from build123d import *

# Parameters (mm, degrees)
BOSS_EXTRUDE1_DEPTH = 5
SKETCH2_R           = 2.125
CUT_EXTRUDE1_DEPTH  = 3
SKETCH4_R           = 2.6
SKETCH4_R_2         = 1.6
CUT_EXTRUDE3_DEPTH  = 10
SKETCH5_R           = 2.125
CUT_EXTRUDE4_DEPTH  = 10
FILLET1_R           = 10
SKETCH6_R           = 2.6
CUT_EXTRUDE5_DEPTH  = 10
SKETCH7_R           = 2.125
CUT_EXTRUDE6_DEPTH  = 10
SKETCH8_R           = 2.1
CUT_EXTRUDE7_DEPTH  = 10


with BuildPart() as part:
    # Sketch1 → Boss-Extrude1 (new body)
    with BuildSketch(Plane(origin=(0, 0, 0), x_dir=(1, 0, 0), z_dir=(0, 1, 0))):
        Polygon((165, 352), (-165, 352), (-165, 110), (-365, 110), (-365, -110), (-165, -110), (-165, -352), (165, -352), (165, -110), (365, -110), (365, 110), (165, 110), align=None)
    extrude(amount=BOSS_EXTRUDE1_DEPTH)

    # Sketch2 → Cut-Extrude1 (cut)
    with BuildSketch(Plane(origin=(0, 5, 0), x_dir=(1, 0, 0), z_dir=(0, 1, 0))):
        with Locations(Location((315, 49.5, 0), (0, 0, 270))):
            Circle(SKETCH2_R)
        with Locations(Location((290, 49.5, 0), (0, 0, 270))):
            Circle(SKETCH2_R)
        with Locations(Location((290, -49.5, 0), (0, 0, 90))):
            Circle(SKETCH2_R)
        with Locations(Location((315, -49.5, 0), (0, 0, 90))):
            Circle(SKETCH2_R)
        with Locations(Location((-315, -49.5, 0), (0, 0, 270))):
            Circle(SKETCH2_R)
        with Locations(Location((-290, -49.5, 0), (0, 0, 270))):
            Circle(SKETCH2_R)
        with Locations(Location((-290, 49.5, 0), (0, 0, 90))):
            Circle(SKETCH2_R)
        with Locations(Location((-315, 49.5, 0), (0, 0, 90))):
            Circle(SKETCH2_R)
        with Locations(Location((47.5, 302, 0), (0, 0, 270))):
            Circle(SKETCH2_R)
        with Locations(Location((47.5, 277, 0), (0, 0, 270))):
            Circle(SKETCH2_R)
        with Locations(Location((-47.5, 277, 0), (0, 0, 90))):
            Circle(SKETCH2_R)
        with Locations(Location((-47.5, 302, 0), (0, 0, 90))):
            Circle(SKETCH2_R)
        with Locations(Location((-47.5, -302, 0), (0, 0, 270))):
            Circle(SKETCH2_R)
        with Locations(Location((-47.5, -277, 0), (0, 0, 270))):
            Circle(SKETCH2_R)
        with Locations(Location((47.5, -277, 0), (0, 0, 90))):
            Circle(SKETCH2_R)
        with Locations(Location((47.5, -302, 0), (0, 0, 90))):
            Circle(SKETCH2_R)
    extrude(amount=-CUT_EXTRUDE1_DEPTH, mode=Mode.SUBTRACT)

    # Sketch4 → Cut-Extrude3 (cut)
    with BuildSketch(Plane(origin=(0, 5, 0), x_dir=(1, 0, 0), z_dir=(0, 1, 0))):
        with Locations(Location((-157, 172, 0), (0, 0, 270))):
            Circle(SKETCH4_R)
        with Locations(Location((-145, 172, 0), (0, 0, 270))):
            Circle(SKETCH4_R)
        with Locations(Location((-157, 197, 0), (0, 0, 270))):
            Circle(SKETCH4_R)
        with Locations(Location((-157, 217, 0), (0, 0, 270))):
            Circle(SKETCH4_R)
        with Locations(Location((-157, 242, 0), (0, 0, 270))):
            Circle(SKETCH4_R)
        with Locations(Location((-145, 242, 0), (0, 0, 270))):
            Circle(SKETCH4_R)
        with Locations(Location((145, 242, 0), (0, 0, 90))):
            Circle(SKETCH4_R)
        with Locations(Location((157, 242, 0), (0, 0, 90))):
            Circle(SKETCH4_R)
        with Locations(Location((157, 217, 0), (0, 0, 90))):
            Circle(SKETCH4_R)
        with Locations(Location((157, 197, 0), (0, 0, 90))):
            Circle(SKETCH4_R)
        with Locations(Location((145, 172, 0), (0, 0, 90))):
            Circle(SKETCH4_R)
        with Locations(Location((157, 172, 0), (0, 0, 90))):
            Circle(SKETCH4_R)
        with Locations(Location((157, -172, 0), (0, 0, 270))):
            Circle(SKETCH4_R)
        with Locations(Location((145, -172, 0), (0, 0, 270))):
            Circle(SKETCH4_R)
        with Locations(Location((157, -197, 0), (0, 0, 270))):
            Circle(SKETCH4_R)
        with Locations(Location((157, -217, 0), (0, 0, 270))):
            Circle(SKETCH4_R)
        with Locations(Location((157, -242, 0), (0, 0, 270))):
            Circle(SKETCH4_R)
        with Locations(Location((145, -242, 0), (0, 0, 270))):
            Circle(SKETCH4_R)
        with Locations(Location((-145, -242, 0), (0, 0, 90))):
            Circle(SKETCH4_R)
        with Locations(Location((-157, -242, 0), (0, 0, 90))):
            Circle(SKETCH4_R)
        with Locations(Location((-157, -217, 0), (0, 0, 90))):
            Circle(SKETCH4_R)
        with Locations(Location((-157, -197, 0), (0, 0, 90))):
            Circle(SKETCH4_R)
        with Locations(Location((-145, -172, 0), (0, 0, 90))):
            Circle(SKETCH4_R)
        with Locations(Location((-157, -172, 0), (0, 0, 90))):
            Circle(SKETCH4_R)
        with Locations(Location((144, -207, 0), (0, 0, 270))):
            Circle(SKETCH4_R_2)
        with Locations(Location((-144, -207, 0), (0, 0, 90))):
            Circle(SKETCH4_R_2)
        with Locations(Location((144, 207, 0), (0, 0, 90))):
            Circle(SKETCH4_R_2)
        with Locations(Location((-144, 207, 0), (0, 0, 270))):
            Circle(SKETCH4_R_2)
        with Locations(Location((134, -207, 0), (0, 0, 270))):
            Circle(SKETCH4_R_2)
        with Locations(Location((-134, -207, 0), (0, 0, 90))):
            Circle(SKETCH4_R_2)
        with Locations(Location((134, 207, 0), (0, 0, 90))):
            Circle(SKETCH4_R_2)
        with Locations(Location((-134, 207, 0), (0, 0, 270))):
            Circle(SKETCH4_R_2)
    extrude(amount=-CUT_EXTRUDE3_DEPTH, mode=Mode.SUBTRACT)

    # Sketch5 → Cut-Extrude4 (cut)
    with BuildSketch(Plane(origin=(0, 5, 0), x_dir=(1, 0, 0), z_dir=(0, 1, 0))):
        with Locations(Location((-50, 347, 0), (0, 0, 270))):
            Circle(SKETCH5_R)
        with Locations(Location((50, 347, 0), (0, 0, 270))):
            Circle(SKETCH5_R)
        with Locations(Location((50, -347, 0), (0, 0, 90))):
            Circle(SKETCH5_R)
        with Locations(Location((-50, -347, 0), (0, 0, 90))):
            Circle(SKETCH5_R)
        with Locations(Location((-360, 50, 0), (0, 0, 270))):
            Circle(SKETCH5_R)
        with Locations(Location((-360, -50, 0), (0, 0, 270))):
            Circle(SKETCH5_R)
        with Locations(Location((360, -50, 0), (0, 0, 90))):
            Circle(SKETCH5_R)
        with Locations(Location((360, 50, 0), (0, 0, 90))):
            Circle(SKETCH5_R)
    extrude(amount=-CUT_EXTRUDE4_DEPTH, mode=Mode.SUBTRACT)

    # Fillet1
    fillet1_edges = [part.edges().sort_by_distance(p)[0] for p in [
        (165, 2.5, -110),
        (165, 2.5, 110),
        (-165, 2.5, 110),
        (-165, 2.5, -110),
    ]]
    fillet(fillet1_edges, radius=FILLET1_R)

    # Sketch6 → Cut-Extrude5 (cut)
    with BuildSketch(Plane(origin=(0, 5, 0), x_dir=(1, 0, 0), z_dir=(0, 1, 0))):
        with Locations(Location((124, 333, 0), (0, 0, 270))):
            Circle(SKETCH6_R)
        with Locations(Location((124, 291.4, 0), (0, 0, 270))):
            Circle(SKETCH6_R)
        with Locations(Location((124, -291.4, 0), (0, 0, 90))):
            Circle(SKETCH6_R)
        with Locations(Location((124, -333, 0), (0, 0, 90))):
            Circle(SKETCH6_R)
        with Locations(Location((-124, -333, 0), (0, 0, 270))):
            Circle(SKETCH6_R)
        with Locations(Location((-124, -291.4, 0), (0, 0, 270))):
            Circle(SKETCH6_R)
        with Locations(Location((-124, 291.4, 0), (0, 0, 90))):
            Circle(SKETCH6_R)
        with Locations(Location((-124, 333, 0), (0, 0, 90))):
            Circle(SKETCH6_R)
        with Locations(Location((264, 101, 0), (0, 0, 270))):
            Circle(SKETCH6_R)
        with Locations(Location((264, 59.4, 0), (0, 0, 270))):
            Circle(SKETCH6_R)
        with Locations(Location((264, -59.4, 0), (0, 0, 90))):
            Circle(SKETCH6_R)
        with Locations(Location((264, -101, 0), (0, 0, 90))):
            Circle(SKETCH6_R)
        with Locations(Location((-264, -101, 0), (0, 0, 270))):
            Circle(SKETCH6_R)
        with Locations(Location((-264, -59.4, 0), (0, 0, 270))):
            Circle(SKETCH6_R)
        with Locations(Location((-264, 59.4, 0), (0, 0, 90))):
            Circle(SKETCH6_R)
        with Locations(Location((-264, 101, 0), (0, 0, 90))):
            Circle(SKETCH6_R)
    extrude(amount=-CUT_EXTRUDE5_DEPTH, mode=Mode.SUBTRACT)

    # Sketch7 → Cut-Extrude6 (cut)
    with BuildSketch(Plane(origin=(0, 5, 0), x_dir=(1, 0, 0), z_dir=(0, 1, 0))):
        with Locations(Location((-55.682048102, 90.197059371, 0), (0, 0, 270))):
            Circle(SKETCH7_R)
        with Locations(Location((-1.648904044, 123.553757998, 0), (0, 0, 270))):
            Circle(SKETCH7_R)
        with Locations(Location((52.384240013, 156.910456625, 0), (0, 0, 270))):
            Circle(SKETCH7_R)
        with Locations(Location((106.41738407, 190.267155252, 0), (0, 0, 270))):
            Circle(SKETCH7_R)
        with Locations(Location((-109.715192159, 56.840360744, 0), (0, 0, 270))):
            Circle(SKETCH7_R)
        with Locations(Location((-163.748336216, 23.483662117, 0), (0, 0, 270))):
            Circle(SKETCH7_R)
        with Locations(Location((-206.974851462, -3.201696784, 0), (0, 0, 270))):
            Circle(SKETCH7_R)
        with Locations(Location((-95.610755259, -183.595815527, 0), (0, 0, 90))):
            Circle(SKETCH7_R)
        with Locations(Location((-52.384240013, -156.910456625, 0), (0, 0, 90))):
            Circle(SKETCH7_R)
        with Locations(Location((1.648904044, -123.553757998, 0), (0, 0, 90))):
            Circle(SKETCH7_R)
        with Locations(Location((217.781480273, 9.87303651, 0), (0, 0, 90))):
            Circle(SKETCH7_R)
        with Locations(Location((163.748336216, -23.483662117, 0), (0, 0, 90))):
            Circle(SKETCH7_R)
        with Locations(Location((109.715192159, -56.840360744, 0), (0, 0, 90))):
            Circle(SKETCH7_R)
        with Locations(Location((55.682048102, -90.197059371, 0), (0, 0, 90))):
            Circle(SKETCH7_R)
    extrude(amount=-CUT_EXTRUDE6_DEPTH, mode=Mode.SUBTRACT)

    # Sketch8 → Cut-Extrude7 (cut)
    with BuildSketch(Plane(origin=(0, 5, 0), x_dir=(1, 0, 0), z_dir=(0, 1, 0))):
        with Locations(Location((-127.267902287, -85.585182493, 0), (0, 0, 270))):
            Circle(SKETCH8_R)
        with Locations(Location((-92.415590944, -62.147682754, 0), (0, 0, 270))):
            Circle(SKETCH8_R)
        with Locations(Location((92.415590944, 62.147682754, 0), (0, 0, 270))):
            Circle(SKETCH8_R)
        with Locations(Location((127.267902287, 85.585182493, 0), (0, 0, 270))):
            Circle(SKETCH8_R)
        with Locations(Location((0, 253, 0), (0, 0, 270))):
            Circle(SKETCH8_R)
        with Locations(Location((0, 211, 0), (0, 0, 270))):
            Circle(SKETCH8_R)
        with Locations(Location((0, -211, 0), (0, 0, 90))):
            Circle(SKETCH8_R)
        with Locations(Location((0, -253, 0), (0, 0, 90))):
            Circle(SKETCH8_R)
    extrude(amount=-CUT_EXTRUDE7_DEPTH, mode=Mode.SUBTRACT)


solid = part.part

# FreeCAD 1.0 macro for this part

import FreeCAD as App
import Part
import Sketcher

V = App.Vector


def edges_at(feature, points):
    """Names of the edges that pass closest to the given points."""
    edges = feature.Shape.Edges
    near = lambda p: min(range(len(edges)), key=lambda i: edges[i].distToShape(Part.Vertex(*p))[0])
    return sorted({f"Edge{near(p) + 1}" for p in points})


def add_polygon(sketch, points):
    """Adds a closed chain of lines whose ends are joined by coincident constraints."""
    first, n = sketch.GeometryCount, len(points)
    for a, b in zip(points, points[1:] + points[:1]):
        sketch.addGeometry(Part.LineSegment(App.Vector(*a, 0), App.Vector(*b, 0)), False)
    for i in range(n):
        sketch.addConstraint(Sketcher.Constraint("Coincident", first + i, 2, first + (i + 1) % n, 1))

doc = App.newDocument("Part")
body = doc.addObject("PartDesign::Body", "Body")

sketch1 = body.newObject("Sketcher::SketchObject", "Sketch")
sketch1.AttachmentSupport = (doc.getObject("XZ_Plane"), [""])
sketch1.MapMode = "FlatFace"
add_polygon(sketch1, [(165, -352), (-165, -352), (-165, -110), (-365, -110), (-365, 110), (-165, 110), (-165, 352), (165, 352), (165, 110), (365, 110), (365, -110), (165, -110)])
sketch1.addConstraint([
    Sketcher.Constraint("Horizontal", 0),
    Sketcher.Constraint("Vertical", 1),
    Sketcher.Constraint("Horizontal", 2),
    Sketcher.Constraint("Vertical", 3),
    Sketcher.Constraint("Horizontal", 4),
    Sketcher.Constraint("Vertical", 5),
    Sketcher.Constraint("Horizontal", 6),
    Sketcher.Constraint("Vertical", 7),
    Sketcher.Constraint("Horizontal", 8),
    Sketcher.Constraint("Vertical", 9),
    Sketcher.Constraint("Horizontal", 10),
    Sketcher.Constraint("Vertical", 11),
    Sketcher.Constraint("Symmetric", 0, 2, 6, 2, -1, 1),
    Sketcher.Constraint("Symmetric", 2, 2, 8, 2, -1, 1),
    Sketcher.Constraint("Symmetric", 4, 2, 10, 2, -1, 1),
    Sketcher.Constraint("Symmetric", 4, 2, 7, 2, -2),
    Sketcher.Constraint("DistanceX", 0, 2, 0, 1, 330.0),
    Sketcher.Constraint("DistanceX", 2, 2, 2, 1, 200.0),
    Sketcher.Constraint("DistanceY", 1, 1, 1, 2, 242.0),
    Sketcher.Constraint("DistanceY", 3, 1, 3, 2, 220.0),
])
pad1 = body.newObject("PartDesign::Pad", "Pad")
pad1.Profile = sketch1
pad1.Length = 5
pad1.Reversed = True

sketch2 = body.newObject("Sketcher::SketchObject", "Sketch001")
sketch2.AttachmentSupport = (doc.getObject("XZ_Plane"), [""])
sketch2.MapMode = "FlatFace"
sketch2.AttachmentOffset = App.Placement(V(0, 0, -5), App.Rotation())
sketch2.addGeometry([
    Part.Circle(V(315, -49.5, 0), V(0, 0, 1), 2.1),
    Part.Circle(V(290, -49.5, 0), V(0, 0, 1), 2.1),
    Part.Circle(V(290, 49.5, 0), V(0, 0, 1), 2.1),
    Part.Circle(V(315, 49.5, 0), V(0, 0, 1), 2.1),
    Part.Circle(V(-315, 49.5, 0), V(0, 0, 1), 2.1),
    Part.Circle(V(-290, 49.5, 0), V(0, 0, 1), 2.1),
    Part.Circle(V(-290, -49.5, 0), V(0, 0, 1), 2.1),
    Part.Circle(V(-315, -49.5, 0), V(0, 0, 1), 2.1),
    Part.Circle(V(47.5, -302, 0), V(0, 0, 1), 2.1),
    Part.Circle(V(47.5, -277, 0), V(0, 0, 1), 2.1),
    Part.Circle(V(-47.5, -277, 0), V(0, 0, 1), 2.1),
    Part.Circle(V(-47.5, -302, 0), V(0, 0, 1), 2.1),
    Part.Circle(V(-47.5, 302, 0), V(0, 0, 1), 2.1),
    Part.Circle(V(-47.5, 277, 0), V(0, 0, 1), 2.1),
    Part.Circle(V(47.5, 277, 0), V(0, 0, 1), 2.1),
    Part.Circle(V(47.5, 302, 0), V(0, 0, 1), 2.1),
], False)
sketch2.addConstraint([
    Sketcher.Constraint("Equal", 0, 1),
    Sketcher.Constraint("Equal", 1, 2),
    Sketcher.Constraint("Equal", 2, 3),
    Sketcher.Constraint("Equal", 3, 4),
    Sketcher.Constraint("Equal", 4, 5),
    Sketcher.Constraint("Equal", 5, 6),
    Sketcher.Constraint("Equal", 6, 7),
    Sketcher.Constraint("Equal", 7, 8),
    Sketcher.Constraint("Equal", 8, 9),
    Sketcher.Constraint("Equal", 9, 10),
    Sketcher.Constraint("Equal", 10, 11),
    Sketcher.Constraint("Equal", 11, 12),
    Sketcher.Constraint("Equal", 12, 13),
    Sketcher.Constraint("Equal", 13, 14),
    Sketcher.Constraint("Equal", 14, 15),
    Sketcher.Constraint("Symmetric", 0, 3, 4, 3, -1, 1),
    Sketcher.Constraint("Symmetric", 1, 3, 5, 3, -1, 1),
    Sketcher.Constraint("Symmetric", 2, 3, 6, 3, -1, 1),
    Sketcher.Constraint("Symmetric", 3, 3, 7, 3, -1, 1),
    Sketcher.Constraint("Symmetric", 8, 3, 12, 3, -1, 1),
    Sketcher.Constraint("Symmetric", 9, 3, 13, 3, -1, 1),
    Sketcher.Constraint("Symmetric", 10, 3, 14, 3, -1, 1),
    Sketcher.Constraint("Symmetric", 11, 3, 15, 3, -1, 1),
    Sketcher.Constraint("Symmetric", 3, 3, 4, 3, -2),
    Sketcher.Constraint("Symmetric", 2, 3, 5, 3, -2),
    Sketcher.Constraint("Symmetric", 9, 3, 10, 3, -2),
    Sketcher.Constraint("Symmetric", 8, 3, 11, 3, -2),
    Sketcher.Constraint("Horizontal", 0, 3, 1, 3),
    Sketcher.Constraint("Vertical", 8, 3, 9, 3),
    Sketcher.Constraint("Diameter", 0, 4.25),
    Sketcher.Constraint("DistanceX", -1, 1, 0, 3, 315.0),
    Sketcher.Constraint("DistanceX", -1, 1, 1, 3, 290.0),
    Sketcher.Constraint("DistanceY", 8, 3, -1, 1, 302.0),
    Sketcher.Constraint("DistanceY", 9, 3, -1, 1, 277.0),
    Sketcher.Constraint("DistanceY", 1, 3, 2, 3, 99.0),
    Sketcher.Constraint("DistanceX", 10, 3, 9, 3, 95.0),
])
pocket1 = body.newObject("PartDesign::Pocket", "Pocket")
pocket1.Profile = sketch2
pocket1.Length = 3
pocket1.Reversed = True

sketch3 = body.newObject("Sketcher::SketchObject", "Sketch002")
sketch3.AttachmentSupport = (doc.getObject("XZ_Plane"), [""])
sketch3.MapMode = "FlatFace"
sketch3.AttachmentOffset = App.Placement(V(0, 0, -5), App.Rotation())
sketch3.addGeometry([
    Part.Circle(V(-157, -172, 0), V(0, 0, 1), 2.6),
    Part.Circle(V(-145, -172, 0), V(0, 0, 1), 2.6),
    Part.Circle(V(-157, -197, 0), V(0, 0, 1), 2.6),
    Part.Circle(V(-157, -217, 0), V(0, 0, 1), 2.6),
    Part.Circle(V(-157, -242, 0), V(0, 0, 1), 2.6),
    Part.Circle(V(-145, -242, 0), V(0, 0, 1), 2.6),
    Part.Circle(V(145, -242, 0), V(0, 0, 1), 2.6),
    Part.Circle(V(157, -242, 0), V(0, 0, 1), 2.6),
    Part.Circle(V(157, -217, 0), V(0, 0, 1), 2.6),
    Part.Circle(V(157, -197, 0), V(0, 0, 1), 2.6),
    Part.Circle(V(145, -172, 0), V(0, 0, 1), 2.6),
    Part.Circle(V(157, -172, 0), V(0, 0, 1), 2.6),
    Part.Circle(V(157, 172, 0), V(0, 0, 1), 2.6),
    Part.Circle(V(145, 172, 0), V(0, 0, 1), 2.6),
    Part.Circle(V(157, 197, 0), V(0, 0, 1), 2.6),
    Part.Circle(V(157, 217, 0), V(0, 0, 1), 2.6),
    Part.Circle(V(157, 242, 0), V(0, 0, 1), 2.6),
    Part.Circle(V(145, 242, 0), V(0, 0, 1), 2.6),
    Part.Circle(V(-145, 242, 0), V(0, 0, 1), 2.6),
    Part.Circle(V(-157, 242, 0), V(0, 0, 1), 2.6),
    Part.Circle(V(-157, 217, 0), V(0, 0, 1), 2.6),
    Part.Circle(V(-157, 197, 0), V(0, 0, 1), 2.6),
    Part.Circle(V(-145, 172, 0), V(0, 0, 1), 2.6),
    Part.Circle(V(-157, 172, 0), V(0, 0, 1), 2.6),
    Part.Circle(V(144, 207, 0), V(0, 0, 1), 1.6),
    Part.Circle(V(-144, 207, 0), V(0, 0, 1), 1.6),
    Part.Circle(V(144, -207, 0), V(0, 0, 1), 1.6),
    Part.Circle(V(-144, -207, 0), V(0, 0, 1), 1.6),
    Part.Circle(V(134, 207, 0), V(0, 0, 1), 1.6),
    Part.Circle(V(-134, 207, 0), V(0, 0, 1), 1.6),
    Part.Circle(V(134, -207, 0), V(0, 0, 1), 1.6),
    Part.Circle(V(-134, -207, 0), V(0, 0, 1), 1.6),
], False)
sketch3.addConstraint([
    Sketcher.Constraint("Equal", 0, 1),
    Sketcher.Constraint("Equal", 1, 2),
    Sketcher.Constraint("Equal", 2, 3),
    Sketcher.Constraint("Equal", 3, 4),
    Sketcher.Constraint("Equal", 4, 5),
    Sketcher.Constraint("Equal", 5, 6),
    Sketcher.Constraint("Equal", 6, 7),
    Sketcher.Constraint("Equal", 7, 8),
    Sketcher.Constraint("Equal", 8, 9),
    Sketcher.Constraint("Equal", 9, 10),
    Sketcher.Constraint("Equal", 10, 11),
    Sketcher.Constraint("Equal", 11, 12),
    Sketcher.Constraint("Equal", 12, 13),
    Sketcher.Constraint("Equal", 13, 14),
    Sketcher.Constraint("Equal", 14, 15),
    Sketcher.Constraint("Equal", 15, 16),
    Sketcher.Constraint("Equal", 16, 17),
    Sketcher.Constraint("Equal", 17, 18),
    Sketcher.Constraint("Equal", 18, 19),
    Sketcher.Constraint("Equal", 19, 20),
    Sketcher.Constraint("Equal", 20, 21),
    Sketcher.Constraint("Equal", 21, 22),
    Sketcher.Constraint("Equal", 22, 23),
    Sketcher.Constraint("Equal", 24, 25),
    Sketcher.Constraint("Equal", 25, 26),
    Sketcher.Constraint("Equal", 26, 27),
    Sketcher.Constraint("Equal", 27, 28),
    Sketcher.Constraint("Equal", 28, 29),
    Sketcher.Constraint("Equal", 29, 30),
    Sketcher.Constraint("Equal", 30, 31),
    Sketcher.Constraint("Symmetric", 0, 3, 12, 3, -1, 1),
    Sketcher.Constraint("Symmetric", 1, 3, 13, 3, -1, 1),
    Sketcher.Constraint("Symmetric", 2, 3, 14, 3, -1, 1),
    Sketcher.Constraint("Symmetric", 3, 3, 15, 3, -1, 1),
    Sketcher.Constraint("Symmetric", 4, 3, 16, 3, -1, 1),
    Sketcher.Constraint("Symmetric", 5, 3, 17, 3, -1, 1),
    Sketcher.Constraint("Symmetric", 6, 3, 18, 3, -1, 1),
    Sketcher.Constraint("Symmetric", 7, 3, 19, 3, -1, 1),
    Sketcher.Constraint("Symmetric", 8, 3, 20, 3, -1, 1),
    Sketcher.Constraint("Symmetric", 9, 3, 21, 3, -1, 1),
    Sketcher.Constraint("Symmetric", 10, 3, 22, 3, -1, 1),
    Sketcher.Constraint("Symmetric", 11, 3, 23, 3, -1, 1),
    Sketcher.Constraint("Symmetric", 25, 3, 26, 3, -1, 1),
    Sketcher.Constraint("Symmetric", 24, 3, 27, 3, -1, 1),
    Sketcher.Constraint("Symmetric", 29, 3, 30, 3, -1, 1),
    Sketcher.Constraint("Symmetric", 28, 3, 31, 3, -1, 1),
    Sketcher.Constraint("Symmetric", 5, 3, 6, 3, -2),
    Sketcher.Constraint("Symmetric", 4, 3, 7, 3, -2),
    Sketcher.Constraint("Symmetric", 3, 3, 8, 3, -2),
    Sketcher.Constraint("Symmetric", 2, 3, 9, 3, -2),
    Sketcher.Constraint("Symmetric", 1, 3, 10, 3, -2),
    Sketcher.Constraint("Symmetric", 0, 3, 11, 3, -2),
    Sketcher.Constraint("Symmetric", 24, 3, 25, 3, -2),
    Sketcher.Constraint("Symmetric", 28, 3, 29, 3, -2),
    Sketcher.Constraint("Horizontal", 0, 3, 1, 3),
    Sketcher.Constraint("Horizontal", 4, 3, 5, 3),
    Sketcher.Constraint("Horizontal", 25, 3, 28, 3),
    Sketcher.Constraint("Vertical", 0, 3, 2, 3),
    Sketcher.Constraint("Vertical", 2, 3, 3, 3),
    Sketcher.Constraint("Vertical", 3, 3, 4, 3),
    Sketcher.Constraint("Vertical", 1, 3, 5, 3),
    Sketcher.Constraint("Diameter", 0, 5.2),
    Sketcher.Constraint("Diameter", 24, 3.2),
    Sketcher.Constraint("DistanceX", 0, 3, -1, 1, 157.0),
    Sketcher.Constraint("DistanceY", 0, 3, -1, 1, 172.0),
    Sketcher.Constraint("DistanceX", 1, 3, -1, 1, 145.0),
    Sketcher.Constraint("DistanceY", 2, 3, -1, 1, 197.0),
    Sketcher.Constraint("DistanceY", 3, 3, -1, 1, 217.0),
    Sketcher.Constraint("DistanceY", 4, 3, -1, 1, 242.0),
    Sketcher.Constraint("DistanceX", -1, 1, 24, 3, 144.0),
    Sketcher.Constraint("DistanceY", -1, 1, 24, 3, 207.0),
    Sketcher.Constraint("DistanceX", -1, 1, 28, 3, 134.0),
])
pocket2 = body.newObject("PartDesign::Pocket", "Pocket001")
pocket2.Profile = sketch3
pocket2.Length = 10
pocket2.Reversed = True

sketch4 = body.newObject("Sketcher::SketchObject", "Sketch003")
sketch4.AttachmentSupport = (doc.getObject("XZ_Plane"), [""])
sketch4.MapMode = "FlatFace"
sketch4.AttachmentOffset = App.Placement(V(0, 0, -5), App.Rotation())
sketch4.addGeometry([
    Part.Circle(V(-50, -347, 0), V(0, 0, 1), 2.1),
    Part.Circle(V(50, -347, 0), V(0, 0, 1), 2.1),
    Part.Circle(V(50, 347, 0), V(0, 0, 1), 2.1),
    Part.Circle(V(-50, 347, 0), V(0, 0, 1), 2.1),
    Part.Circle(V(-360, -50, 0), V(0, 0, 1), 2.1),
    Part.Circle(V(-360, 50, 0), V(0, 0, 1), 2.1),
    Part.Circle(V(360, 50, 0), V(0, 0, 1), 2.1),
    Part.Circle(V(360, -50, 0), V(0, 0, 1), 2.1),
], False)
sketch4.addConstraint([
    Sketcher.Constraint("Equal", 0, 1),
    Sketcher.Constraint("Equal", 1, 2),
    Sketcher.Constraint("Equal", 2, 3),
    Sketcher.Constraint("Equal", 3, 4),
    Sketcher.Constraint("Equal", 4, 5),
    Sketcher.Constraint("Equal", 5, 6),
    Sketcher.Constraint("Equal", 6, 7),
    Sketcher.Constraint("Symmetric", 0, 3, 2, 3, -1, 1),
    Sketcher.Constraint("Symmetric", 1, 3, 3, 3, -1, 1),
    Sketcher.Constraint("Symmetric", 4, 3, 6, 3, -1, 1),
    Sketcher.Constraint("Symmetric", 5, 3, 7, 3, -1, 1),
    Sketcher.Constraint("Symmetric", 0, 3, 1, 3, -2),
    Sketcher.Constraint("Symmetric", 5, 3, 6, 3, -2),
    Sketcher.Constraint("Diameter", 0, 4.25),
    Sketcher.Constraint("DistanceX", 0, 3, -1, 1, 50.0),
    Sketcher.Constraint("DistanceY", 0, 3, -1, 1, 347.0),
    Sketcher.Constraint("DistanceX", 4, 3, -1, 1, 360.0),
    Sketcher.Constraint("DistanceY", 4, 3, -1, 1, 50.0),
])
pocket3 = body.newObject("PartDesign::Pocket", "Pocket002")
pocket3.Profile = sketch4
pocket3.Length = 10
pocket3.Reversed = True
doc.recompute()

fillet = body.newObject("PartDesign::Fillet", "Fillet")
fillet.Base = (pocket3, edges_at(pocket3, [
    (165, 2.5, -110),
    (165, 2.5, 110),
    (-165, 2.5, 110),
    (-165, 2.5, -110),
]))
fillet.Radius = 10

sketch5 = body.newObject("Sketcher::SketchObject", "Sketch004")
sketch5.AttachmentSupport = (doc.getObject("XZ_Plane"), [""])
sketch5.MapMode = "FlatFace"
sketch5.AttachmentOffset = App.Placement(V(0, 0, -5), App.Rotation())
sketch5.addGeometry([
    Part.Circle(V(124, -333, 0), V(0, 0, 1), 2.6),
    Part.Circle(V(124, -291.4, 0), V(0, 0, 1), 2.6),
    Part.Circle(V(124, 291.4, 0), V(0, 0, 1), 2.6),
    Part.Circle(V(124, 333, 0), V(0, 0, 1), 2.6),
    Part.Circle(V(-124, 333, 0), V(0, 0, 1), 2.6),
    Part.Circle(V(-124, 291.4, 0), V(0, 0, 1), 2.6),
    Part.Circle(V(-124, -291.4, 0), V(0, 0, 1), 2.6),
    Part.Circle(V(-124, -333, 0), V(0, 0, 1), 2.6),
    Part.Circle(V(264, -101, 0), V(0, 0, 1), 2.6),
    Part.Circle(V(264, -59.4, 0), V(0, 0, 1), 2.6),
    Part.Circle(V(264, 59.4, 0), V(0, 0, 1), 2.6),
    Part.Circle(V(264, 101, 0), V(0, 0, 1), 2.6),
    Part.Circle(V(-264, 101, 0), V(0, 0, 1), 2.6),
    Part.Circle(V(-264, 59.4, 0), V(0, 0, 1), 2.6),
    Part.Circle(V(-264, -59.4, 0), V(0, 0, 1), 2.6),
    Part.Circle(V(-264, -101, 0), V(0, 0, 1), 2.6),
], False)
sketch5.addConstraint([
    Sketcher.Constraint("Equal", 0, 1),
    Sketcher.Constraint("Equal", 1, 2),
    Sketcher.Constraint("Equal", 2, 3),
    Sketcher.Constraint("Equal", 3, 4),
    Sketcher.Constraint("Equal", 4, 5),
    Sketcher.Constraint("Equal", 5, 6),
    Sketcher.Constraint("Equal", 6, 7),
    Sketcher.Constraint("Equal", 7, 8),
    Sketcher.Constraint("Equal", 8, 9),
    Sketcher.Constraint("Equal", 9, 10),
    Sketcher.Constraint("Equal", 10, 11),
    Sketcher.Constraint("Equal", 11, 12),
    Sketcher.Constraint("Equal", 12, 13),
    Sketcher.Constraint("Equal", 13, 14),
    Sketcher.Constraint("Equal", 14, 15),
    Sketcher.Constraint("Symmetric", 0, 3, 4, 3, -1, 1),
    Sketcher.Constraint("Symmetric", 1, 3, 5, 3, -1, 1),
    Sketcher.Constraint("Symmetric", 2, 3, 6, 3, -1, 1),
    Sketcher.Constraint("Symmetric", 3, 3, 7, 3, -1, 1),
    Sketcher.Constraint("Symmetric", 8, 3, 12, 3, -1, 1),
    Sketcher.Constraint("Symmetric", 9, 3, 13, 3, -1, 1),
    Sketcher.Constraint("Symmetric", 10, 3, 14, 3, -1, 1),
    Sketcher.Constraint("Symmetric", 11, 3, 15, 3, -1, 1),
    Sketcher.Constraint("Symmetric", 3, 3, 4, 3, -2),
    Sketcher.Constraint("Symmetric", 2, 3, 5, 3, -2),
    Sketcher.Constraint("Symmetric", 11, 3, 12, 3, -2),
    Sketcher.Constraint("Symmetric", 10, 3, 13, 3, -2),
    Sketcher.Constraint("Vertical", 0, 3, 1, 3),
    Sketcher.Constraint("Vertical", 8, 3, 9, 3),
    Sketcher.Constraint("Diameter", 0, 5.2),
    Sketcher.Constraint("DistanceX", -1, 1, 0, 3, 124.0),
    Sketcher.Constraint("DistanceY", 0, 3, -1, 1, 333.0),
    Sketcher.Constraint("DistanceX", -1, 1, 8, 3, 264.0),
    Sketcher.Constraint("DistanceY", 8, 3, -1, 1, 101.0),
    Sketcher.Constraint("DistanceY", 1, 3, 9, 3, 232.0),
    Sketcher.Constraint("DistanceY", 1, 3, -1, 1, 291.4),
])
pocket4 = body.newObject("PartDesign::Pocket", "Pocket003")
pocket4.Profile = sketch5
pocket4.Length = 10
pocket4.Reversed = True

sketch6 = body.newObject("Sketcher::SketchObject", "Sketch005")
sketch6.AttachmentSupport = (doc.getObject("XZ_Plane"), [""])
sketch6.MapMode = "FlatFace"
sketch6.AttachmentOffset = App.Placement(V(0, 0, -5), App.Rotation())
sketch6.addGeometry([
    Part.Circle(V(-55.7, -90.2, 0), V(0, 0, 1), 2.1),
    Part.Circle(V(-1.6, -123.6, 0), V(0, 0, 1), 2.1),
    Part.Circle(V(52.4, -156.9, 0), V(0, 0, 1), 2.1),
    Part.Circle(V(106.4, -190.3, 0), V(0, 0, 1), 2.1),
    Part.Circle(V(-109.7, -56.8, 0), V(0, 0, 1), 2.1),
    Part.Circle(V(-163.7, -23.5, 0), V(0, 0, 1), 2.1),
    Part.Circle(V(-207, 3.2, 0), V(0, 0, 1), 2.1),
    Part.Circle(V(-95.6, 183.6, 0), V(0, 0, 1), 2.1),
    Part.Circle(V(-52.4, 156.9, 0), V(0, 0, 1), 2.1),
    Part.Circle(V(1.6, 123.6, 0), V(0, 0, 1), 2.1),
    Part.Circle(V(217.8, -9.9, 0), V(0, 0, 1), 2.1),
    Part.Circle(V(163.7, 23.5, 0), V(0, 0, 1), 2.1),
    Part.Circle(V(109.7, 56.8, 0), V(0, 0, 1), 2.1),
    Part.Circle(V(55.7, 90.2, 0), V(0, 0, 1), 2.1),
], False)
sketch6.addConstraint([
    Sketcher.Constraint("Equal", 0, 1),
    Sketcher.Constraint("Equal", 1, 2),
    Sketcher.Constraint("Equal", 2, 3),
    Sketcher.Constraint("Equal", 3, 4),
    Sketcher.Constraint("Equal", 4, 5),
    Sketcher.Constraint("Equal", 5, 6),
    Sketcher.Constraint("Equal", 6, 7),
    Sketcher.Constraint("Equal", 7, 8),
    Sketcher.Constraint("Equal", 8, 9),
    Sketcher.Constraint("Equal", 9, 10),
    Sketcher.Constraint("Equal", 10, 11),
    Sketcher.Constraint("Equal", 11, 12),
    Sketcher.Constraint("Equal", 12, 13),
    Sketcher.Constraint("Symmetric", 2, 3, 8, 3, -1, 1),
    Sketcher.Constraint("Symmetric", 1, 3, 9, 3, -1, 1),
    Sketcher.Constraint("Symmetric", 5, 3, 11, 3, -1, 1),
    Sketcher.Constraint("Symmetric", 4, 3, 12, 3, -1, 1),
    Sketcher.Constraint("Symmetric", 0, 3, 13, 3, -1, 1),
    Sketcher.Constraint("Diameter", 0, 4.25),
    Sketcher.Constraint("DistanceY", 1, 3, 0, 3, 33.356699),
    Sketcher.Constraint("DistanceY", 2, 3, 1, 3, 33.356699),
    Sketcher.Constraint("DistanceY", 3, 3, 2, 3, 33.356699),
    Sketcher.Constraint("DistanceY", 0, 3, 4, 3, 33.356699),
    Sketcher.Constraint("DistanceY", 4, 3, 5, 3, 33.356699),
    Sketcher.Constraint("DistanceY", 10, 3, 11, 3, 33.356699),
    Sketcher.Constraint("DistanceX", 0, 3, -1, 1, 55.682048),
    Sketcher.Constraint("DistanceY", 0, 3, -1, 1, 90.197059),
    Sketcher.Constraint("DistanceX", -1, 1, 2, 3, 52.38424),
    Sketcher.Constraint("DistanceX", 6, 3, -1, 1, 206.974851),
    Sketcher.Constraint("DistanceX", -1, 1, 10, 3, 217.78148),
    Sketcher.Constraint("DistanceX", 1, 3, 3, 3, 108.066288),
    Sketcher.Constraint("DistanceX", 4, 3, 1, 3, 108.066288),
    Sketcher.Constraint("DistanceX", 5, 3, 0, 3, 108.066288),
    Sketcher.Constraint("DistanceX", 5, 3, 3, 3, 270.16572),
    Sketcher.Constraint("DistanceY", 5, 3, 6, 3, 26.685359),
    Sketcher.Constraint("DistanceY", 6, 3, 7, 3, 180.394119),
    Sketcher.Constraint("DistanceX", 5, 3, 7, 3, 68.137581),
])
pocket5 = body.newObject("PartDesign::Pocket", "Pocket004")
pocket5.Profile = sketch6
pocket5.Length = 10
pocket5.Reversed = True

sketch7 = body.newObject("Sketcher::SketchObject", "Sketch006")
sketch7.AttachmentSupport = (doc.getObject("XZ_Plane"), [""])
sketch7.MapMode = "FlatFace"
sketch7.AttachmentOffset = App.Placement(V(0, 0, -5), App.Rotation())
sketch7.addGeometry([
    Part.Circle(V(-127.3, 85.6, 0), V(0, 0, 1), 2.1),
    Part.Circle(V(-92.4, 62.1, 0), V(0, 0, 1), 2.1),
    Part.Circle(V(92.4, -62.1, 0), V(0, 0, 1), 2.1),
    Part.Circle(V(127.3, -85.6, 0), V(0, 0, 1), 2.1),
    Part.Circle(V(0, -253, 0), V(0, 0, 1), 2.1),
    Part.Circle(V(0, -211, 0), V(0, 0, 1), 2.1),
    Part.Circle(V(0, 211, 0), V(0, 0, 1), 2.1),
    Part.Circle(V(0, 253, 0), V(0, 0, 1), 2.1),
], False)
sketch7.addConstraint([
    Sketcher.Constraint("Equal", 0, 1),
    Sketcher.Constraint("Equal", 1, 2),
    Sketcher.Constraint("Equal", 2, 3),
    Sketcher.Constraint("Equal", 3, 4),
    Sketcher.Constraint("Equal", 4, 5),
    Sketcher.Constraint("Equal", 5, 6),
    Sketcher.Constraint("Equal", 6, 7),
    Sketcher.Constraint("Symmetric", 1, 3, 2, 3, -1, 1),
    Sketcher.Constraint("Symmetric", 0, 3, 3, 3, -1, 1),
    Sketcher.Constraint("Symmetric", 5, 3, 6, 3, -1, 1),
    Sketcher.Constraint("Symmetric", 4, 3, 7, 3, -1, 1),
    Sketcher.Constraint("PointOnObject", 4, 3, -2),
    Sketcher.Constraint("PointOnObject", 5, 3, -2),
    Sketcher.Constraint("Diameter", 0, 4.2),
    Sketcher.Constraint("DistanceY", 4, 3, -1, 1, 253.0),
    Sketcher.Constraint("DistanceY", 5, 3, -1, 1, 211.0),
    Sketcher.Constraint("DistanceY", 1, 3, 0, 3, 23.4375),
    Sketcher.Constraint("DistanceX", 1, 3, -1, 1, 92.415591),
    Sketcher.Constraint("DistanceX", 0, 3, 1, 3, 34.852311),
    Sketcher.Constraint("DistanceY", -1, 1, 0, 3, 85.585182),
])
pocket6 = body.newObject("PartDesign::Pocket", "Pocket005")
pocket6.Profile = sketch7
pocket6.Length = 10
pocket6.Reversed = True

doc.recompute()
